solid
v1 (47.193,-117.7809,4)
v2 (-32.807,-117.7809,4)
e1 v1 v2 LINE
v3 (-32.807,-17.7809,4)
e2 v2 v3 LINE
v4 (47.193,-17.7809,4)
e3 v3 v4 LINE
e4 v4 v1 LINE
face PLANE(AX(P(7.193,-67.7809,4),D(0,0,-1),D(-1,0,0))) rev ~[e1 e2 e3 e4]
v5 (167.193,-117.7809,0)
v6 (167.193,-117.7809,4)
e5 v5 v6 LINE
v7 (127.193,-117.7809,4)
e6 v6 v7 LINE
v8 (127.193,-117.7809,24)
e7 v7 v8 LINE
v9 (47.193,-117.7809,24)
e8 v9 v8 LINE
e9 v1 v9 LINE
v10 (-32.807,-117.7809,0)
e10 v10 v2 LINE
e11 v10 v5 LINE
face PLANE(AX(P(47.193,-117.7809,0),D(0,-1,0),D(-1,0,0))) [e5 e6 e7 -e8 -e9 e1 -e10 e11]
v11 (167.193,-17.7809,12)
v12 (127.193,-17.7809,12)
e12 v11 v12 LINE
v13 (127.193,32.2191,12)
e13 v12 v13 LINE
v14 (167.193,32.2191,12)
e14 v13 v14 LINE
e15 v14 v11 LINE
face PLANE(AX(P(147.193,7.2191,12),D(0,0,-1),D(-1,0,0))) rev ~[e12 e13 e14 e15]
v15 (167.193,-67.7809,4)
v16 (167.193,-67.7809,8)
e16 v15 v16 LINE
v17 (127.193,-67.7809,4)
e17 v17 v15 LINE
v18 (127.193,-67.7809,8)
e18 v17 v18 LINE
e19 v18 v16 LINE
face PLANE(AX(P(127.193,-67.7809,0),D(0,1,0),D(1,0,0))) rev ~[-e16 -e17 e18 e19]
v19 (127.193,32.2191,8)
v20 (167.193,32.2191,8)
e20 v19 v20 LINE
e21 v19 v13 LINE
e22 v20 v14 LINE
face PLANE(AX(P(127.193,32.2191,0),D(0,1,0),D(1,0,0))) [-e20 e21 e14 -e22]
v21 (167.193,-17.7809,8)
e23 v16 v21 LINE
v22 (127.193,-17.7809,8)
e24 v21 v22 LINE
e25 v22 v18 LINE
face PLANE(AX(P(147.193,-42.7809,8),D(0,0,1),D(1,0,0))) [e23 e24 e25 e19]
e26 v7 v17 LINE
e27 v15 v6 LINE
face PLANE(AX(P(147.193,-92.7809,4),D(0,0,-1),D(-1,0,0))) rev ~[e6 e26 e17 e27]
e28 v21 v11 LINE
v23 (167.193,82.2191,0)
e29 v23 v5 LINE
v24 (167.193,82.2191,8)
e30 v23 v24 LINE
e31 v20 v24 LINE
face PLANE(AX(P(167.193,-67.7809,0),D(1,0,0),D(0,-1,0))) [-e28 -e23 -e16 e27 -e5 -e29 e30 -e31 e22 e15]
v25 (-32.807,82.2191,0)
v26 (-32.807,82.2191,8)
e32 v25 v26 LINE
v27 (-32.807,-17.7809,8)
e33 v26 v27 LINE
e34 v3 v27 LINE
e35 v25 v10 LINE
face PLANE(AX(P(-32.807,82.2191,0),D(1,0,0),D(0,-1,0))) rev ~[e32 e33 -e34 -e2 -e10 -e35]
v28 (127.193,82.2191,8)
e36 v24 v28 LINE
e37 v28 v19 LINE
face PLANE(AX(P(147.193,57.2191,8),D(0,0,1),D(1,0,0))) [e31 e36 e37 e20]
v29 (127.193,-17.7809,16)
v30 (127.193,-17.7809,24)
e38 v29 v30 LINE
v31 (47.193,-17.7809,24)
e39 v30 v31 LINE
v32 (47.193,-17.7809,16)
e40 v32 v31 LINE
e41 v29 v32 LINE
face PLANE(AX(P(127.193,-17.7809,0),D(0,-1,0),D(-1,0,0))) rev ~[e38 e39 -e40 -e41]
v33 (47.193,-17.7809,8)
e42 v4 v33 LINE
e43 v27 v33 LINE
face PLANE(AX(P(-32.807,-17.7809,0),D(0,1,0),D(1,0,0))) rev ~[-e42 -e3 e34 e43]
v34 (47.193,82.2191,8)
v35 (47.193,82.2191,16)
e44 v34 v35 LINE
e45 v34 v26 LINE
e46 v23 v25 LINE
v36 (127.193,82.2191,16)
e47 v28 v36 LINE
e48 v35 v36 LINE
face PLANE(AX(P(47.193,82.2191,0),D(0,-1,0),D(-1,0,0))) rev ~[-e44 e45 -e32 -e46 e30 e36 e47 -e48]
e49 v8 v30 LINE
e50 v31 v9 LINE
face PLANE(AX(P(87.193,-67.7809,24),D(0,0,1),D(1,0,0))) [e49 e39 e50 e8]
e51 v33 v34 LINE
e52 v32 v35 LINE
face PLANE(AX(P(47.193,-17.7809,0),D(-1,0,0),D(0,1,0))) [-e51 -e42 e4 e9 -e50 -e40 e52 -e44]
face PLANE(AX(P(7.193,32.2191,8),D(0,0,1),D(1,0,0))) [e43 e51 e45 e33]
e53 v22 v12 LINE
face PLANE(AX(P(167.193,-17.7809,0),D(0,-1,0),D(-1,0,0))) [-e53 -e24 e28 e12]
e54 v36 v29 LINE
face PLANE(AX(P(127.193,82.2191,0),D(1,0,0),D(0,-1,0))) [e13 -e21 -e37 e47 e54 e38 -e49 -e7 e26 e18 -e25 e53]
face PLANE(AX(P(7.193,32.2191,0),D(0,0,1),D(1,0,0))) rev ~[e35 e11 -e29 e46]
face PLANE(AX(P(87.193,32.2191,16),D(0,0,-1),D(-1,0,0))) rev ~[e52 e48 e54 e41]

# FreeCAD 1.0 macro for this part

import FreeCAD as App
import Part
import Sketcher
from FreeCAD import Vector

doc = App.newDocument("Part")
body = doc.addObject("PartDesign::Body", "Body")

sketch1 = doc.addObject("Sketcher::SketchObject", "Sketch")
body.addObject(sketch1)
sketch1.AttachmentSupport = (doc.XY_Plane, [""])
sketch1.MapMode = "FlatFace"
sketch1.addGeometry([
    Part.LineSegment(Vector(47, 82, 0), Vector(-33, 82, 0)),
    Part.LineSegment(Vector(-33, 82, 0), Vector(-33, -18, 0)),
    Part.LineSegment(Vector(-33, -18, 0), Vector(47, -18, 0)),
    Part.LineSegment(Vector(47, -18, 0), Vector(47, 82, 0)),
], False)
sketch1.addConstraint([
    Sketcher.Constraint("Coincident", 0, 2, 1, 1),
    Sketcher.Constraint("Coincident", 1, 2, 2, 1),
    Sketcher.Constraint("Coincident", 2, 2, 3, 1),
    Sketcher.Constraint("Coincident", 3, 2, 0, 1),
    Sketcher.Constraint("Horizontal", 0),
    Sketcher.Constraint("Vertical", 1),
    Sketcher.Constraint("Horizontal", 2),
    Sketcher.Constraint("Vertical", 3),
    Sketcher.Constraint("DistanceX", 0, 2, 0, 1, 80.0),
    Sketcher.Constraint("DistanceY", 1, 2, 1, 1, 100.0),
    Sketcher.Constraint("DistanceX", 0, 2, -1, 1, 32.807),
    Sketcher.Constraint("DistanceY", -1, 1, 0, 2, 82.219),
])
pad1 = doc.addObject("PartDesign::Pad", "Pad")
body.addObject(pad1)
pad1.Profile = sketch1
pad1.Length = 8

sketch2 = doc.addObject("Sketcher::SketchObject", "Sketch001")
body.addObject(sketch2)
sketch2.AttachmentSupport = (doc.XY_Plane, [""])
sketch2.MapMode = "FlatFace"
sketch2.addGeometry([
    Part.LineSegment(Vector(-33, -18, 0), Vector(-33, -118, 0)),
    Part.LineSegment(Vector(-33, -118, 0), Vector(47, -118, 0)),
    Part.LineSegment(Vector(47, -118, 0), Vector(47, -18, 0)),
    Part.LineSegment(Vector(47, -18, 0), Vector(-33, -18, 0)),
], False)
sketch2.addConstraint([
    Sketcher.Constraint("Coincident", 0, 2, 1, 1),
    Sketcher.Constraint("Coincident", 1, 2, 2, 1),
    Sketcher.Constraint("Coincident", 2, 2, 3, 1),
    Sketcher.Constraint("Coincident", 3, 2, 0, 1),
    Sketcher.Constraint("Vertical", 0),
    Sketcher.Constraint("Horizontal", 1),
    Sketcher.Constraint("Vertical", 2),
    Sketcher.Constraint("Horizontal", 3),
    Sketcher.Constraint("DistanceX", 1, 1, 1, 2, 80.0),
    Sketcher.Constraint("DistanceY", 0, 2, 0, 1, 100.0),
    Sketcher.Constraint("DistanceX", 0, 2, -1, 1, 32.807),
    Sketcher.Constraint("DistanceY", 0, 2, -1, 1, 117.781),
])
pad2 = doc.addObject("PartDesign::Pad", "Pad001")
body.addObject(pad2)
pad2.Profile = sketch2
pad2.Length = 4

sketch3 = doc.addObject("Sketcher::SketchObject", "Sketch002")
body.addObject(sketch3)
sketch3.AttachmentSupport = (doc.XY_Plane, [""])
sketch3.MapMode = "FlatFace"
sketch3.addGeometry([
    Part.LineSegment(Vector(127, 82, 0), Vector(47, 82, 0)),
    Part.LineSegment(Vector(47, 82, 0), Vector(47, -18, 0)),
    Part.LineSegment(Vector(47, -18, 0), Vector(127, -18, 0)),
    Part.LineSegment(Vector(127, -18, 0), Vector(127, 82, 0)),
], False)
sketch3.addConstraint([
    Sketcher.Constraint("Coincident", 0, 2, 1, 1),
    Sketcher.Constraint("Coincident", 1, 2, 2, 1),
    Sketcher.Constraint("Coincident", 2, 2, 3, 1),
    Sketcher.Constraint("Coincident", 3, 2, 0, 1),
    Sketcher.Constraint("Horizontal", 0),
    Sketcher.Constraint("Vertical", 1),
    Sketcher.Constraint("Horizontal", 2),
    Sketcher.Constraint("Vertical", 3),
    Sketcher.Constraint("DistanceX", 0, 2, 0, 1, 80.0),
    Sketcher.Constraint("DistanceY", 1, 2, 1, 1, 100.0),
    Sketcher.Constraint("DistanceX", -1, 1, 0, 2, 47.193),
    Sketcher.Constraint("DistanceY", -1, 1, 0, 2, 82.219),
])
pad3 = doc.addObject("PartDesign::Pad", "Pad002")
body.addObject(pad3)
pad3.Profile = sketch3
pad3.Length = 16

sketch4 = doc.addObject("Sketcher::SketchObject", "Sketch003")
body.addObject(sketch4)
sketch4.AttachmentSupport = (doc.XY_Plane, [""])
sketch4.MapMode = "FlatFace"
sketch4.addGeometry([
    Part.LineSegment(Vector(47, -18, 0), Vector(47, -118, 0)),
    Part.LineSegment(Vector(47, -118, 0), Vector(127, -118, 0)),
    Part.LineSegment(Vector(127, -118, 0), Vector(127, -18, 0)),
    Part.LineSegment(Vector(127, -18, 0), Vector(47, -18, 0)),
], False)
sketch4.addConstraint([
    Sketcher.Constraint("Coincident", 0, 2, 1, 1),
    Sketcher.Constraint("Coincident", 1, 2, 2, 1),
    Sketcher.Constraint("Coincident", 2, 2, 3, 1),
    Sketcher.Constraint("Coincident", 3, 2, 0, 1),
    Sketcher.Constraint("Vertical", 0),
    Sketcher.Constraint("Horizontal", 1),
    Sketcher.Constraint("Vertical", 2),
    Sketcher.Constraint("Horizontal", 3),
    Sketcher.Constraint("DistanceX", 1, 1, 1, 2, 80.0),
    Sketcher.Constraint("DistanceY", 0, 2, 0, 1, 100.0),
    Sketcher.Constraint("DistanceX", -1, 1, 0, 2, 47.193),
    Sketcher.Constraint("DistanceY", 0, 2, -1, 1, 117.781),
])
pad4 = doc.addObject("PartDesign::Pad", "Pad003")
body.addObject(pad4)
pad4.Profile = sketch4
pad4.Length = 24

sketch5 = doc.addObject("Sketcher::SketchObject", "Sketch004")
body.addObject(sketch5)
sketch5.AttachmentSupport = (doc.XY_Plane, [""])
sketch5.MapMode = "FlatFace"
sketch5.addGeometry([
    Part.LineSegment(Vector(127, -118, 0), Vector(167, -118, 0)),
    Part.LineSegment(Vector(167, -118, 0), Vector(167, -68, 0)),
    Part.LineSegment(Vector(167, -68, 0), Vector(127, -68, 0)),
    Part.LineSegment(Vector(127, -68, 0), Vector(127, -118, 0)),
], False)
sketch5.addConstraint([
    Sketcher.Constraint("Coincident", 0, 2, 1, 1),
    Sketcher.Constraint("Coincident", 1, 2, 2, 1),
    Sketcher.Constraint("Coincident", 2, 2, 3, 1),
    Sketcher.Constraint("Coincident", 3, 2, 0, 1),
    Sketcher.Constraint("Horizontal", 0),
    Sketcher.Constraint("Vertical", 1),
    Sketcher.Constraint("Horizontal", 2),
    Sketcher.Constraint("Vertical", 3),
    Sketcher.Constraint("DistanceX", 0, 1, 0, 2, 40.0),
    Sketcher.Constraint("DistanceY", 1, 1, 1, 2, 50.0),
    Sketcher.Constraint("DistanceX", -1, 1, 0, 2, 167.193),
    Sketcher.Constraint("DistanceY", 0, 2, -1, 1, 117.781),
])
pad5 = doc.addObject("PartDesign::Pad", "Pad004")
body.addObject(pad5)
pad5.Profile = sketch5
pad5.Length = 4

sketch6 = doc.addObject("Sketcher::SketchObject", "Sketch005")
body.addObject(sketch6)
sketch6.AttachmentSupport = (doc.XY_Plane, [""])
sketch6.MapMode = "FlatFace"
sketch6.addGeometry([
    Part.LineSegment(Vector(127, -18, 0), Vector(127, -68, 0)),
    Part.LineSegment(Vector(127, -68, 0), Vector(167, -68, 0)),
    Part.LineSegment(Vector(167, -68, 0), Vector(167, -18, 0)),
    Part.LineSegment(Vector(167, -18, 0), Vector(127, -18, 0)),
], False)
sketch6.addConstraint([
    Sketcher.Constraint("Coincident", 0, 2, 1, 1),
    Sketcher.Constraint("Coincident", 1, 2, 2, 1),
    Sketcher.Constraint("Coincident", 2, 2, 3, 1),
    Sketcher.Constraint("Coincident", 3, 2, 0, 1),
    Sketcher.Constraint("Vertical", 0),
    Sketcher.Constraint("Horizontal", 1),
    Sketcher.Constraint("Vertical", 2),
    Sketcher.Constraint("Horizontal", 3),
    Sketcher.Constraint("DistanceX", 1, 1, 1, 2, 40.0),
    Sketcher.Constraint("DistanceY", 0, 2, 0, 1, 50.0),
    Sketcher.Constraint("DistanceX", -1, 1, 0, 2, 127.193),
    Sketcher.Constraint("DistanceY", 0, 2, -1, 1, 67.781),
])
pad6 = doc.addObject("PartDesign::Pad", "Pad005")
body.addObject(pad6)
pad6.Profile = sketch6
pad6.Length = 8

sketch7 = doc.addObject("Sketcher::SketchObject", "Sketch006")
body.addObject(sketch7)
sketch7.AttachmentSupport = (doc.XY_Plane, [""])
sketch7.MapMode = "FlatFace"
sketch7.addGeometry([
    Part.LineSegment(Vector(127, -18, 0), Vector(167, -18, 0)),
    Part.LineSegment(Vector(167, -18, 0), Vector(167, 32, 0)),
    Part.LineSegment(Vector(167, 32, 0), Vector(127, 32, 0)),
    Part.LineSegment(Vector(127, 32, 0), Vector(127, -18, 0)),
], False)
sketch7.addConstraint([
    Sketcher.Constraint("Coincident", 0, 2, 1, 1),
    Sketcher.Constraint("Coincident", 1, 2, 2, 1),
    Sketcher.Constraint("Coincident", 2, 2, 3, 1),
    Sketcher.Constraint("Coincident", 3, 2, 0, 1),
    Sketcher.Constraint("Horizontal", 0),
    Sketcher.Constraint("Vertical", 1),
    Sketcher.Constraint("Horizontal", 2),
    Sketcher.Constraint("Vertical", 3),
    Sketcher.Constraint("DistanceX", 0, 1, 0, 2, 40.0),
    Sketcher.Constraint("DistanceY", 1, 1, 1, 2, 50.0),
    Sketcher.Constraint("DistanceX", -1, 1, 0, 2, 167.193),
    Sketcher.Constraint("DistanceY", 0, 2, -1, 1, 17.781),
])
pad7 = doc.addObject("PartDesign::Pad", "Pad006")
body.addObject(pad7)
pad7.Profile = sketch7
pad7.Length = 12

sketch8 = doc.addObject("Sketcher::SketchObject", "Sketch007")
body.addObject(sketch8)
sketch8.AttachmentSupport = (doc.XY_Plane, [""])
sketch8.MapMode = "FlatFace"
sketch8.addGeometry([
    Part.LineSegment(Vector(127, 82, 0), Vector(127, 32, 0)),
    Part.LineSegment(Vector(127, 32, 0), Vector(167, 32, 0)),
    Part.LineSegment(Vector(167, 32, 0), Vector(167, 82, 0)),
    Part.LineSegment(Vector(167, 82, 0), Vector(127, 82, 0)),
], False)
sketch8.addConstraint([
    Sketcher.Constraint("Coincident", 0, 2, 1, 1),
    Sketcher.Constraint("Coincident", 1, 2, 2, 1),
    Sketcher.Constraint("Coincident", 2, 2, 3, 1),
    Sketcher.Constraint("Coincident", 3, 2, 0, 1),
    Sketcher.Constraint("Vertical", 0),
    Sketcher.Constraint("Horizontal", 1),
    Sketcher.Constraint("Vertical", 2),
    Sketcher.Constraint("Horizontal", 3),
    Sketcher.Constraint("DistanceX", 1, 1, 1, 2, 40.0),
    Sketcher.Constraint("DistanceY", 0, 2, 0, 1, 50.0),
    Sketcher.Constraint("DistanceX", -1, 1, 0, 2, 127.193),
    Sketcher.Constraint("DistanceY", -1, 1, 0, 2, 32.219),
])
pad8 = doc.addObject("PartDesign::Pad", "Pad007")
body.addObject(pad8)
pad8.Profile = sketch8
pad8.Length = 8

doc.recompute()
